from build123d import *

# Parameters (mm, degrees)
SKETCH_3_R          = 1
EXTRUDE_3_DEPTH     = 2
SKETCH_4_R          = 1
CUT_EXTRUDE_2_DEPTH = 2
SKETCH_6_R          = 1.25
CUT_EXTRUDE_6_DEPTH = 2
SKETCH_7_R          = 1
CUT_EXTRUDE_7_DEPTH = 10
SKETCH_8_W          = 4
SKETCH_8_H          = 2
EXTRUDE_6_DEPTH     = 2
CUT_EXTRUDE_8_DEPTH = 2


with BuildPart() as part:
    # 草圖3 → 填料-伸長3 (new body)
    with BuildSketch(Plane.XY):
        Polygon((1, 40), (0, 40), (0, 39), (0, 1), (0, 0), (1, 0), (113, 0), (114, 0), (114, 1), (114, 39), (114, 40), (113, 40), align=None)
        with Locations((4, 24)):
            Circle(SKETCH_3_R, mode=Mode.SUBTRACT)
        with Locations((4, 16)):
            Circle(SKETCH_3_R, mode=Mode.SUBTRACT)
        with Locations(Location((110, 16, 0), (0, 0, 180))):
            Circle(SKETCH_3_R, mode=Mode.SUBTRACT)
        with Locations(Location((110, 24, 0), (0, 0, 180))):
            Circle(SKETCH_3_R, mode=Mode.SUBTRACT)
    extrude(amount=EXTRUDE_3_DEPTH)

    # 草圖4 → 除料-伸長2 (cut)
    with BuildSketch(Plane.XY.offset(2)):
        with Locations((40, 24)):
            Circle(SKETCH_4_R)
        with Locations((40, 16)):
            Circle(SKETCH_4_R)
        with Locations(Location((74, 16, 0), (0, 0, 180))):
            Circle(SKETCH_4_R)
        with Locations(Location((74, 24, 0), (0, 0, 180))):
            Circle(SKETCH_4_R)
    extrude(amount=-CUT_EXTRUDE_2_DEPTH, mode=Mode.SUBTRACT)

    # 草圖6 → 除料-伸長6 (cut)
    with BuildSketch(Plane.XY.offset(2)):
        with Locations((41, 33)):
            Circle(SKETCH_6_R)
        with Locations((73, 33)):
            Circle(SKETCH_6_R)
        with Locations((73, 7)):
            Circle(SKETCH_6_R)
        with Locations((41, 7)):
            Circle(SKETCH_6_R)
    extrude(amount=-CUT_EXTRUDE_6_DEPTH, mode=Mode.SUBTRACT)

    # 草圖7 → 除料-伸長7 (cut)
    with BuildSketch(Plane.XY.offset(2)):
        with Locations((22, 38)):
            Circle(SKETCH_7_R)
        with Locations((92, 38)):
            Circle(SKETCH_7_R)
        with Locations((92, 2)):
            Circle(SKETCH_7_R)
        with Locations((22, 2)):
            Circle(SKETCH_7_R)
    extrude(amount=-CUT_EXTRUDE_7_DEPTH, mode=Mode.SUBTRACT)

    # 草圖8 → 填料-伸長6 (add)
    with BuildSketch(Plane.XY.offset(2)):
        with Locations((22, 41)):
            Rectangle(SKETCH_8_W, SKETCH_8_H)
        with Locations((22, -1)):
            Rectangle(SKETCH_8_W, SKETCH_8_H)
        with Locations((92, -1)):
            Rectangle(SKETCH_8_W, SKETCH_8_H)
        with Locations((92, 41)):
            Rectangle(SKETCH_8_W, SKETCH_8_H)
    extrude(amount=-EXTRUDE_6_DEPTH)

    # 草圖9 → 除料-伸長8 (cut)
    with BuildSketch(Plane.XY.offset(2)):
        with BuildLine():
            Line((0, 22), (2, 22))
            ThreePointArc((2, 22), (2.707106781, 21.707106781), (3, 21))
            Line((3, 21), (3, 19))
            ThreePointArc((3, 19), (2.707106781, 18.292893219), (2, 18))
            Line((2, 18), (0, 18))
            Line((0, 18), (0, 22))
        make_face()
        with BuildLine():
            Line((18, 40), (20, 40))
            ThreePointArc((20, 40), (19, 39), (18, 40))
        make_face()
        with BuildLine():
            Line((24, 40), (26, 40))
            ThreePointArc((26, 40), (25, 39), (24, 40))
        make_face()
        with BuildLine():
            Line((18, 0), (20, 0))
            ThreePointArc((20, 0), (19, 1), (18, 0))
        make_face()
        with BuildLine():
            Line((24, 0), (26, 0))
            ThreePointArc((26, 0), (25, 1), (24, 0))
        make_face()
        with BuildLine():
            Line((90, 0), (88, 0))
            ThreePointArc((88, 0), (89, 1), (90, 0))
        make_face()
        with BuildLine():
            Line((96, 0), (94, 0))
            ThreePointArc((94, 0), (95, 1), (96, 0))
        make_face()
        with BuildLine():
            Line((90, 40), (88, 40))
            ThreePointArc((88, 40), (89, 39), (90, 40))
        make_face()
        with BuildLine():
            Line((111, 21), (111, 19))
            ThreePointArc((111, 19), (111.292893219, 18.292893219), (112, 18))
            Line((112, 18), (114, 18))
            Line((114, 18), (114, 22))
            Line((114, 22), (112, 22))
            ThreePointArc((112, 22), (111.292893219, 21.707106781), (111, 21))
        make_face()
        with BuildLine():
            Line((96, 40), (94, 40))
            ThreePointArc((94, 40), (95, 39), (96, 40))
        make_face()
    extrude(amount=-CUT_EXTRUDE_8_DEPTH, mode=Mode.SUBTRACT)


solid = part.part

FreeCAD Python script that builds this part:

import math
import FreeCAD as App
import Part
import Sketcher

V = App.Vector
Q = App.Units.Quantity

doc = App.newDocument("Part")
body = doc.addObject("PartDesign::Body", "Body")

# Sketch on XY plane
sketch1 = doc.addObject("Sketcher::SketchObject", "Sketch")
body.addObject(sketch1)
sketch1.AttachmentSupport = (doc.XY_Plane, [""])
sketch1.MapMode = "FlatFace"
sketch1.addGeometry([
    Part.LineSegment(V(0, 40, 0), V(0, 0, 0)),  # 0
    Part.LineSegment(V(0, 0, 0), V(114, 0, 0)),  # 1
    Part.LineSegment(V(114, 0, 0), V(114, 40, 0)),  # 2
    Part.LineSegment(V(114, 40, 0), V(0, 40, 0)),  # 3
    Part.Circle(V(4, 16, 0), V(0, 0, 1), 1),  # 4
    Part.Circle(V(110, 16, 0), V(0, 0, 1), 1),  # 5
    Part.Circle(V(4, 24, 0), V(0, 0, 1), 1),  # 6
    Part.Circle(V(110, 24, 0), V(0, 0, 1), 1),  # 7
], False)
sketch1.addConstraint([
    Sketcher.Constraint("Coincident", 0, 2, 1, 1),
    Sketcher.Constraint("Coincident", 1, 2, 2, 1),
    Sketcher.Constraint("Coincident", 2, 2, 3, 1),
    Sketcher.Constraint("Coincident", 3, 2, 0, 1),
    Sketcher.Constraint("Vertical", 0),
    Sketcher.Constraint("Horizontal", 1),
    Sketcher.Constraint("Vertical", 2),
    Sketcher.Constraint("Horizontal", 3),
    Sketcher.Constraint("Coincident", 0, 2, -1, 1),
    Sketcher.Constraint("Equal", 4, 5),
    Sketcher.Constraint("Equal", 5, 6),
    Sketcher.Constraint("Equal", 6, 7),
    Sketcher.Constraint("Horizontal", 4, 3, 5, 3),
    Sketcher.Constraint("Horizontal", 6, 3, 7, 3),
    Sketcher.Constraint("Vertical", 4, 3, 6, 3),
    Sketcher.Constraint("Vertical", 5, 3, 7, 3),
    Sketcher.Constraint("Diameter", 4, Q("2 mm")),
    Sketcher.Constraint("DistanceX", 1, 1, 1, 2, Q("114 mm")),
    Sketcher.Constraint("DistanceY", 0, 2, 0, 1, Q("40 mm")),
    Sketcher.Constraint("DistanceX", -1, 1, 4, 3, Q("4 mm")),
    Sketcher.Constraint("DistanceY", -1, 1, 4, 3, Q("16 mm")),
    Sketcher.Constraint("DistanceX", -1, 1, 5, 3, Q("110 mm")),
    Sketcher.Constraint("DistanceY", -1, 1, 6, 3, Q("24 mm")),
])
pad1 = doc.addObject("PartDesign::Pad", "Pad")
body.addObject(pad1)
pad1.Profile = sketch1
pad1.Length = 2

# Sketch on XY plane
sketch2 = doc.addObject("Sketcher::SketchObject", "Sketch001")
body.addObject(sketch2)
sketch2.AttachmentSupport = (doc.XY_Plane, [""])
sketch2.MapMode = "FlatFace"
sketch2.AttachmentOffset = App.Placement(V(0, 0, 2), App.Rotation())
sketch2.addGeometry([
    Part.Circle(V(40, 24, 0), V(0, 0, 1), 1),
    Part.Circle(V(40, 16, 0), V(0, 0, 1), 1),
    Part.Circle(V(74, 16, 0), V(0, 0, 1), 1),
    Part.Circle(V(74, 24, 0), V(0, 0, 1), 1),
], False)
sketch2.addConstraint([
    Sketcher.Constraint("Equal", 0, 1),
    Sketcher.Constraint("Equal", 1, 2),
    Sketcher.Constraint("Equal", 2, 3),
    Sketcher.Constraint("Horizontal", 1, 3, 2, 3),
    Sketcher.Constraint("Horizontal", 0, 3, 3, 3),
    Sketcher.Constraint("Vertical", 0, 3, 1, 3),
    Sketcher.Constraint("Vertical", 2, 3, 3, 3),
    Sketcher.Constraint("Diameter", 0, Q("2 mm")),
    Sketcher.Constraint("DistanceX", -1, 1, 0, 3, Q("40 mm")),
    Sketcher.Constraint("DistanceY", -1, 1, 0, 3, Q("24 mm")),
    Sketcher.Constraint("DistanceY", -1, 1, 1, 3, Q("16 mm")),
    Sketcher.Constraint("DistanceX", -1, 1, 2, 3, Q("74 mm")),
])
pocket1 = doc.addObject("PartDesign::Pocket", "Pocket")
body.addObject(pocket1)
pocket1.Profile = sketch2
pocket1.Length = 2

# Sketch on XY plane
sketch3 = doc.addObject("Sketcher::SketchObject", "Sketch002")
body.addObject(sketch3)
sketch3.AttachmentSupport = (doc.XY_Plane, [""])
sketch3.MapMode = "FlatFace"
sketch3.AttachmentOffset = App.Placement(V(0, 0, 2), App.Rotation())
sketch3.addGeometry([
    Part.Circle(V(41, 33, 0), V(0, 0, 1), 1.25),
    Part.Circle(V(73, 33, 0), V(0, 0, 1), 1.25),
    Part.Circle(V(73, 7, 0), V(0, 0, 1), 1.25),
    Part.Circle(V(41, 7, 0), V(0, 0, 1), 1.25),
], False)
sketch3.addConstraint([
    Sketcher.Constraint("Equal", 0, 1),
    Sketcher.Constraint("Equal", 1, 2),
    Sketcher.Constraint("Equal", 2, 3),
    Sketcher.Constraint("Horizontal", 0, 3, 1, 3),
    Sketcher.Constraint("Horizontal", 2, 3, 3, 3),
    Sketcher.Constraint("Vertical", 1, 3, 2, 3),
    Sketcher.Constraint("Vertical", 0, 3, 3, 3),
    Sketcher.Constraint("Diameter", 0, Q("2.5 mm")),
    Sketcher.Constraint("DistanceX", -1, 1, 0, 3, Q("41 mm")),
    Sketcher.Constraint("DistanceY", -1, 1, 0, 3, Q("33 mm")),
    Sketcher.Constraint("DistanceX", -1, 1, 1, 3, Q("73 mm")),
    Sketcher.Constraint("DistanceY", -1, 1, 2, 3, Q("7 mm")),
])
pocket2 = doc.addObject("PartDesign::Pocket", "Pocket001")
body.addObject(pocket2)
pocket2.Profile = sketch3
pocket2.Length = 2

# Sketch on XY plane
sketch4 = doc.addObject("Sketcher::SketchObject", "Sketch003")
body.addObject(sketch4)
sketch4.AttachmentSupport = (doc.XY_Plane, [""])
sketch4.MapMode = "FlatFace"
sketch4.AttachmentOffset = App.Placement(V(0, 0, 2), App.Rotation())
sketch4.addGeometry([
    Part.Circle(V(22, 38, 0), V(0, 0, 1), 1),
    Part.Circle(V(92, 38, 0), V(0, 0, 1), 1),
    Part.Circle(V(92, 2, 0), V(0, 0, 1), 1),
    Part.Circle(V(22, 2, 0), V(0, 0, 1), 1),
], False)
sketch4.addConstraint([
    Sketcher.Constraint("Equal", 0, 1),
    Sketcher.Constraint("Equal", 1, 2),
    Sketcher.Constraint("Equal", 2, 3),
    Sketcher.Constraint("Horizontal", 0, 3, 1, 3),
    Sketcher.Constraint("Horizontal", 2, 3, 3, 3),
    Sketcher.Constraint("Vertical", 1, 3, 2, 3),
    Sketcher.Constraint("Vertical", 0, 3, 3, 3),
    Sketcher.Constraint("Diameter", 0, Q("2 mm")),
    Sketcher.Constraint("DistanceX", -1, 1, 0, 3, Q("22 mm")),
    Sketcher.Constraint("DistanceY", -1, 1, 0, 3, Q("38 mm")),
    Sketcher.Constraint("DistanceX", -1, 1, 1, 3, Q("92 mm")),
    Sketcher.Constraint("DistanceY", -1, 1, 2, 3, Q("2 mm")),
])
pocket3 = doc.addObject("PartDesign::Pocket", "Pocket002")
body.addObject(pocket3)
pocket3.Profile = sketch4
pocket3.Length = 10

# Sketch on XY plane
sketch5 = doc.addObject("Sketcher::SketchObject", "Sketch004")
body.addObject(sketch5)
sketch5.AttachmentSupport = (doc.XY_Plane, [""])
sketch5.MapMode = "FlatFace"
sketch5.AttachmentOffset = App.Placement(V(0, 0, 2), App.Rotation())
sketch5.addGeometry([
    Part.LineSegment(V(20, 42, 0), V(20, 40, 0)),  # 0
    Part.LineSegment(V(20, 40, 0), V(24, 40, 0)),  # 1
    Part.LineSegment(V(24, 40, 0), V(24, 42, 0)),  # 2
    Part.LineSegment(V(24, 42, 0), V(20, 42, 0)),  # 3
    Part.LineSegment(V(20, 0, 0), V(20, -2, 0)),  # 4
    Part.LineSegment(V(20, -2, 0), V(24, -2, 0)),  # 5
    Part.LineSegment(V(24, -2, 0), V(24, 0, 0)),  # 6
    Part.LineSegment(V(24, 0, 0), V(20, 0, 0)),  # 7
    Part.LineSegment(V(90, 0, 0), V(90, -2, 0)),  # 8
    Part.LineSegment(V(90, -2, 0), V(94, -2, 0)),  # 9
    Part.LineSegment(V(94, -2, 0), V(94, 0, 0)),  # 10
    Part.LineSegment(V(94, 0, 0), V(90, 0, 0)),  # 11
    Part.LineSegment(V(90, 42, 0), V(90, 40, 0)),  # 12
    Part.LineSegment(V(90, 40, 0), V(94, 40, 0)),  # 13
    Part.LineSegment(V(94, 40, 0), V(94, 42, 0)),  # 14
    Part.LineSegment(V(94, 42, 0), V(90, 42, 0)),  # 15
], False)
sketch5.addConstraint([
    Sketcher.Constraint("Coincident", 0, 2, 1, 1),
    Sketcher.Constraint("Coincident", 1, 2, 2, 1),
    Sketcher.Constraint("Coincident", 2, 2, 3, 1),
    Sketcher.Constraint("Coincident", 3, 2, 0, 1),
    Sketcher.Constraint("Coincident", 4, 2, 5, 1),
    Sketcher.Constraint("Coincident", 5, 2, 6, 1),
    Sketcher.Constraint("Coincident", 6, 2, 7, 1),
    Sketcher.Constraint("Coincident", 7, 2, 4, 1),
    Sketcher.Constraint("Coincident", 8, 2, 9, 1),
    Sketcher.Constraint("Coincident", 9, 2, 10, 1),
    Sketcher.Constraint("Coincident", 10, 2, 11, 1),
    Sketcher.Constraint("Coincident", 11, 2, 8, 1),
    Sketcher.Constraint("Coincident", 12, 2, 13, 1),
    Sketcher.Constraint("Coincident", 13, 2, 14, 1),
    Sketcher.Constraint("Coincident", 14, 2, 15, 1),
    Sketcher.Constraint("Coincident", 15, 2, 12, 1),
    Sketcher.Constraint("Vertical", 0),
    Sketcher.Constraint("Horizontal", 1),
    Sketcher.Constraint("Vertical", 2),
    Sketcher.Constraint("Horizontal", 3),
    Sketcher.Constraint("Vertical", 4),
    Sketcher.Constraint("Horizontal", 5),
    Sketcher.Constraint("Vertical", 6),
    Sketcher.Constraint("Horizontal", 7),
    Sketcher.Constraint("Vertical", 8),
    Sketcher.Constraint("Horizontal", 9),
    Sketcher.Constraint("Vertical", 10),
    Sketcher.Constraint("Horizontal", 11),
    Sketcher.Constraint("Vertical", 12),
    Sketcher.Constraint("Horizontal", 13),
    Sketcher.Constraint("Vertical", 14),
    Sketcher.Constraint("Horizontal", 15),
    Sketcher.Constraint("PointOnObject", 6, 2, -1),
    Sketcher.Constraint("PointOnObject", 10, 2, -1),
    Sketcher.Constraint("Horizontal", 5, 2, 8, 2),
    Sketcher.Constraint("Horizontal", 1, 2, 12, 2),
    Sketcher.Constraint("Horizontal", 3, 2, 14, 2),
    Sketcher.Constraint("Vertical", 3, 2, 4, 2),
    Sketcher.Constraint("Vertical", 2, 2, 5, 2),
    Sketcher.Constraint("Vertical", 11, 2, 12, 2),
    Sketcher.Constraint("Vertical", 10, 2, 13, 2),
    Sketcher.Constraint("Equal", 7, 9),
    Sketcher.Constraint("Equal", 2, 4),
    Sketcher.Constraint("DistanceX", 1, 1, 1, 2, Q("4 mm")),
    Sketcher.Constraint("DistanceY", 0, 2, 0, 1, Q("2 mm")),
    Sketcher.Constraint("DistanceX", -1, 1, 0, 2, Q("20 mm")),
    Sketcher.Constraint("DistanceY", -1, 1, 0, 2, Q("40 mm")),
    Sketcher.Constraint("DistanceX", -1, 1, 8, 2, Q("90 mm")),
])
pad2 = doc.addObject("PartDesign::Pad", "Pad001")
body.addObject(pad2)
pad2.Profile = sketch5
pad2.Length = 2
pad2.Reversed = True

# Sketch on XY plane
sketch6 = doc.addObject("Sketcher::SketchObject", "Sketch005")
body.addObject(sketch6)
sketch6.AttachmentSupport = (doc.XY_Plane, [""])
sketch6.MapMode = "FlatFace"
sketch6.AttachmentOffset = App.Placement(V(0, 0, 2), App.Rotation())
sketch6.addGeometry([
    Part.LineSegment(V(2, 22, 0), V(0, 22, 0)),  # 0
    Part.LineSegment(V(0, 22, 0), V(0, 18, 0)),  # 1
    Part.LineSegment(V(0, 18, 0), V(2, 18, 0)),  # 2
    Part.ArcOfCircle(Part.Circle(V(2, 19, 0), V(0, 0, 1), 1), math.radians(-90), math.radians(0)),  # 3
    Part.LineSegment(V(3, 19, 0), V(3, 21, 0)),  # 4
    Part.ArcOfCircle(Part.Circle(V(2, 21, 0), V(0, 0, 1), 1), math.radians(0), math.radians(90)),  # 5
    Part.LineSegment(V(20, 40, 0), V(18, 40, 0)),  # 6
    Part.ArcOfCircle(Part.Circle(V(19, 40, 0), V(0, 0, 1), 1), math.radians(180), math.radians(360)),  # 7
    Part.LineSegment(V(26, 40, 0), V(24, 40, 0)),  # 8
    Part.ArcOfCircle(Part.Circle(V(25, 40, 0), V(0, 0, 1), 1), math.radians(180), math.radians(360)),  # 9
    Part.LineSegment(V(18, 0, 0), V(20, 0, 0)),  # 10
    Part.ArcOfCircle(Part.Circle(V(19, 0, 0), V(0, 0, 1), 1), math.radians(0), math.radians(180)),  # 11
    Part.LineSegment(V(24, 0, 0), V(26, 0, 0)),  # 12
    Part.ArcOfCircle(Part.Circle(V(25, 0, 0), V(0, 0, 1), 1), math.radians(0), math.radians(180)),  # 13
    Part.LineSegment(V(88, 0, 0), V(90, 0, 0)),  # 14
    Part.ArcOfCircle(Part.Circle(V(89, 0, 0), V(0, 0, 1), 1), math.radians(0), math.radians(180)),  # 15
    Part.LineSegment(V(94, 0, 0), V(96, 0, 0)),  # 16
    Part.ArcOfCircle(Part.Circle(V(95, 0, 0), V(0, 0, 1), 1), math.radians(0), math.radians(180)),  # 17
    Part.LineSegment(V(90, 40, 0), V(88, 40, 0)),  # 18
    Part.ArcOfCircle(Part.Circle(V(89, 40, 0), V(0, 0, 1), 1), math.radians(180), math.radians(360)),  # 19
    Part.LineSegment(V(111, 21, 0), V(111, 19, 0)),  # 20
    Part.ArcOfCircle(Part.Circle(V(112, 19, 0), V(0, 0, 1), 1), math.radians(-180), math.radians(-90)),  # 21
    Part.LineSegment(V(112, 18, 0), V(114, 18, 0)),  # 22
    Part.LineSegment(V(114, 18, 0), V(114, 22, 0)),  # 23
    Part.LineSegment(V(114, 22, 0), V(112, 22, 0)),  # 24
    Part.ArcOfCircle(Part.Circle(V(112, 21, 0), V(0, 0, 1), 1), math.radians(90), math.radians(180)),  # 25
    Part.LineSegment(V(96, 40, 0), V(94, 40, 0)),  # 26
    Part.ArcOfCircle(Part.Circle(V(95, 40, 0), V(0, 0, 1), 1), math.radians(180), math.radians(360)),  # 27
], False)
sketch6.addConstraint([
    Sketcher.Constraint("Coincident", 0, 2, 1, 1),
    Sketcher.Constraint("Coincident", 1, 2, 2, 1),
    Sketcher.Constraint("Tangent", 2, 2, 3, 1),
    Sketcher.Constraint("Tangent", 3, 2, 4, 1),
    Sketcher.Constraint("Tangent", 4, 2, 5, 1),
    Sketcher.Constraint("Tangent", 5, 2, 0, 1),
    Sketcher.Constraint("Coincident", 6, 1, 7, 2),
    Sketcher.Constraint("Coincident", 7, 1, 6, 2),
    Sketcher.Constraint("Coincident", 8, 1, 9, 2),
    Sketcher.Constraint("Coincident", 9, 1, 8, 2),
    Sketcher.Constraint("Coincident", 10, 1, 11, 2),
    Sketcher.Constraint("Coincident", 11, 1, 10, 2),
    Sketcher.Constraint("Coincident", 12, 1, 13, 2),
    Sketcher.Constraint("Coincident", 13, 1, 12, 2),
    Sketcher.Constraint("Coincident", 14, 1, 15, 2),
    Sketcher.Constraint("Coincident", 15, 1, 14, 2),
    Sketcher.Constraint("Coincident", 16, 1, 17, 2),
    Sketcher.Constraint("Coincident", 17, 1, 16, 2),
    Sketcher.Constraint("Coincident", 18, 1, 19, 2),
    Sketcher.Constraint("Coincident", 19, 1, 18, 2),
    Sketcher.Constraint("Tangent", 20, 2, 21, 1),
    Sketcher.Constraint("Tangent", 21, 2, 22, 1),
    Sketcher.Constraint("Coincident", 22, 2, 23, 1),
    Sketcher.Constraint("Coincident", 23, 2, 24, 1),
    Sketcher.Constraint("Tangent", 24, 2, 25, 1),
    Sketcher.Constraint("Tangent", 25, 2, 20, 1),
    Sketcher.Constraint("Coincident", 26, 1, 27, 2),
    Sketcher.Constraint("Coincident", 27, 1, 26, 2),
    Sketcher.Constraint("Horizontal", 0),
    Sketcher.Constraint("Vertical", 1),
    Sketcher.Constraint("Horizontal", 2),
    Sketcher.Constraint("Vertical", 4),
    Sketcher.Constraint("Horizontal", 6),
    Sketcher.Constraint("Horizontal", 8),
    Sketcher.Constraint("Horizontal", 10),
    Sketcher.Constraint("Horizontal", 12),
    Sketcher.Constraint("Horizontal", 14),
    Sketcher.Constraint("Horizontal", 16),
    Sketcher.Constraint("Horizontal", 18),
    Sketcher.Constraint("Vertical", 20),
    Sketcher.Constraint("Horizontal", 22),
    Sketcher.Constraint("Vertical", 23),
    Sketcher.Constraint("Horizontal", 24),
    Sketcher.Constraint("Horizontal", 26),
    Sketcher.Constraint("Equal", 3, 5),
    Sketcher.Constraint("Equal", 5, 7),
    Sketcher.Constraint("Equal", 7, 9),
    Sketcher.Constraint("Equal", 9, 11),
    Sketcher.Constraint("Equal", 11, 13),
    Sketcher.Constraint("Equal", 13, 15),
    Sketcher.Constraint("Equal", 15, 17),
    Sketcher.Constraint("Equal", 17, 19),
    Sketcher.Constraint("Equal", 19, 21),
    Sketcher.Constraint("Equal", 21, 25),
    Sketcher.Constraint("Equal", 25, 27),
    Sketcher.Constraint("PointOnObject", 11, 3, -1),
    Sketcher.Constraint("PointOnObject", 13, 3, -1),
    Sketcher.Constraint("PointOnObject", 15, 3, -1),
    Sketcher.Constraint("PointOnObject", 17, 3, -1),
    Sketcher.Constraint("PointOnObject", 0, 2, -2),
    Sketcher.Constraint("PointOnObject", 10, 1, -1),
    Sketcher.Constraint("PointOnObject", 12, 1, -1),
    Sketcher.Constraint("PointOnObject", 14, 1, -1),
    Sketcher.Constraint("PointOnObject", 16, 1, -1),
    Sketcher.Constraint("Horizontal", 7, 3, 9, 3),
    Sketcher.Constraint("Horizontal", 9, 3, 19, 3),
    Sketcher.Constraint("Horizontal", 3, 3, 21, 3),
    Sketcher.Constraint("Horizontal", 5, 3, 25, 3),
    Sketcher.Constraint("Horizontal", 19, 3, 27, 3),
    Sketcher.Constraint("Horizontal", 27, 3, 6, 1),
    Sketcher.Constraint("Horizontal", 7, 1, 8, 1),
    Sketcher.Constraint("Horizontal", 9, 1, 18, 1),
    Sketcher.Constraint("Horizontal", 19, 1, 26, 1),
    Sketcher.Constraint("Vertical", 7, 3, 11, 3),
    Sketcher.Constraint("Vertical", 9, 3, 13, 3),
    Sketcher.Constraint("Vertical", 15, 3, 19, 3),
    Sketcher.Constraint("Vertical", 17, 3, 27, 3),
    Sketcher.Constraint("Equal", 2, 6),
    Sketcher.Constraint("Equal", 18, 22),
    Sketcher.Constraint("Equal", 26, 4),
    Sketcher.Constraint("Radius", 3, Q("1 mm")),
    Sketcher.Constraint("DistanceY", -1, 1, 3, 3, Q("19 mm")),
    Sketcher.Constraint("DistanceX", -1, 1, 7, 3, Q("19 mm")),
    Sketcher.Constraint("DistanceY", -1, 1, 7, 3, Q("40 mm")),
    Sketcher.Constraint("DistanceX", -1, 1, 9, 3, Q("25 mm")),
    Sketcher.Constraint("DistanceX", -1, 1, 15, 3, Q("89 mm")),
    Sketcher.Constraint("DistanceX", -1, 1, 17, 3, Q("95 mm")),
    Sketcher.Constraint("DistanceX", -1, 1, 21, 3, Q("112 mm")),
])
pocket4 = doc.addObject("PartDesign::Pocket", "Pocket003")
body.addObject(pocket4)
pocket4.Profile = sketch6
pocket4.Length = 2

doc.recompute()
